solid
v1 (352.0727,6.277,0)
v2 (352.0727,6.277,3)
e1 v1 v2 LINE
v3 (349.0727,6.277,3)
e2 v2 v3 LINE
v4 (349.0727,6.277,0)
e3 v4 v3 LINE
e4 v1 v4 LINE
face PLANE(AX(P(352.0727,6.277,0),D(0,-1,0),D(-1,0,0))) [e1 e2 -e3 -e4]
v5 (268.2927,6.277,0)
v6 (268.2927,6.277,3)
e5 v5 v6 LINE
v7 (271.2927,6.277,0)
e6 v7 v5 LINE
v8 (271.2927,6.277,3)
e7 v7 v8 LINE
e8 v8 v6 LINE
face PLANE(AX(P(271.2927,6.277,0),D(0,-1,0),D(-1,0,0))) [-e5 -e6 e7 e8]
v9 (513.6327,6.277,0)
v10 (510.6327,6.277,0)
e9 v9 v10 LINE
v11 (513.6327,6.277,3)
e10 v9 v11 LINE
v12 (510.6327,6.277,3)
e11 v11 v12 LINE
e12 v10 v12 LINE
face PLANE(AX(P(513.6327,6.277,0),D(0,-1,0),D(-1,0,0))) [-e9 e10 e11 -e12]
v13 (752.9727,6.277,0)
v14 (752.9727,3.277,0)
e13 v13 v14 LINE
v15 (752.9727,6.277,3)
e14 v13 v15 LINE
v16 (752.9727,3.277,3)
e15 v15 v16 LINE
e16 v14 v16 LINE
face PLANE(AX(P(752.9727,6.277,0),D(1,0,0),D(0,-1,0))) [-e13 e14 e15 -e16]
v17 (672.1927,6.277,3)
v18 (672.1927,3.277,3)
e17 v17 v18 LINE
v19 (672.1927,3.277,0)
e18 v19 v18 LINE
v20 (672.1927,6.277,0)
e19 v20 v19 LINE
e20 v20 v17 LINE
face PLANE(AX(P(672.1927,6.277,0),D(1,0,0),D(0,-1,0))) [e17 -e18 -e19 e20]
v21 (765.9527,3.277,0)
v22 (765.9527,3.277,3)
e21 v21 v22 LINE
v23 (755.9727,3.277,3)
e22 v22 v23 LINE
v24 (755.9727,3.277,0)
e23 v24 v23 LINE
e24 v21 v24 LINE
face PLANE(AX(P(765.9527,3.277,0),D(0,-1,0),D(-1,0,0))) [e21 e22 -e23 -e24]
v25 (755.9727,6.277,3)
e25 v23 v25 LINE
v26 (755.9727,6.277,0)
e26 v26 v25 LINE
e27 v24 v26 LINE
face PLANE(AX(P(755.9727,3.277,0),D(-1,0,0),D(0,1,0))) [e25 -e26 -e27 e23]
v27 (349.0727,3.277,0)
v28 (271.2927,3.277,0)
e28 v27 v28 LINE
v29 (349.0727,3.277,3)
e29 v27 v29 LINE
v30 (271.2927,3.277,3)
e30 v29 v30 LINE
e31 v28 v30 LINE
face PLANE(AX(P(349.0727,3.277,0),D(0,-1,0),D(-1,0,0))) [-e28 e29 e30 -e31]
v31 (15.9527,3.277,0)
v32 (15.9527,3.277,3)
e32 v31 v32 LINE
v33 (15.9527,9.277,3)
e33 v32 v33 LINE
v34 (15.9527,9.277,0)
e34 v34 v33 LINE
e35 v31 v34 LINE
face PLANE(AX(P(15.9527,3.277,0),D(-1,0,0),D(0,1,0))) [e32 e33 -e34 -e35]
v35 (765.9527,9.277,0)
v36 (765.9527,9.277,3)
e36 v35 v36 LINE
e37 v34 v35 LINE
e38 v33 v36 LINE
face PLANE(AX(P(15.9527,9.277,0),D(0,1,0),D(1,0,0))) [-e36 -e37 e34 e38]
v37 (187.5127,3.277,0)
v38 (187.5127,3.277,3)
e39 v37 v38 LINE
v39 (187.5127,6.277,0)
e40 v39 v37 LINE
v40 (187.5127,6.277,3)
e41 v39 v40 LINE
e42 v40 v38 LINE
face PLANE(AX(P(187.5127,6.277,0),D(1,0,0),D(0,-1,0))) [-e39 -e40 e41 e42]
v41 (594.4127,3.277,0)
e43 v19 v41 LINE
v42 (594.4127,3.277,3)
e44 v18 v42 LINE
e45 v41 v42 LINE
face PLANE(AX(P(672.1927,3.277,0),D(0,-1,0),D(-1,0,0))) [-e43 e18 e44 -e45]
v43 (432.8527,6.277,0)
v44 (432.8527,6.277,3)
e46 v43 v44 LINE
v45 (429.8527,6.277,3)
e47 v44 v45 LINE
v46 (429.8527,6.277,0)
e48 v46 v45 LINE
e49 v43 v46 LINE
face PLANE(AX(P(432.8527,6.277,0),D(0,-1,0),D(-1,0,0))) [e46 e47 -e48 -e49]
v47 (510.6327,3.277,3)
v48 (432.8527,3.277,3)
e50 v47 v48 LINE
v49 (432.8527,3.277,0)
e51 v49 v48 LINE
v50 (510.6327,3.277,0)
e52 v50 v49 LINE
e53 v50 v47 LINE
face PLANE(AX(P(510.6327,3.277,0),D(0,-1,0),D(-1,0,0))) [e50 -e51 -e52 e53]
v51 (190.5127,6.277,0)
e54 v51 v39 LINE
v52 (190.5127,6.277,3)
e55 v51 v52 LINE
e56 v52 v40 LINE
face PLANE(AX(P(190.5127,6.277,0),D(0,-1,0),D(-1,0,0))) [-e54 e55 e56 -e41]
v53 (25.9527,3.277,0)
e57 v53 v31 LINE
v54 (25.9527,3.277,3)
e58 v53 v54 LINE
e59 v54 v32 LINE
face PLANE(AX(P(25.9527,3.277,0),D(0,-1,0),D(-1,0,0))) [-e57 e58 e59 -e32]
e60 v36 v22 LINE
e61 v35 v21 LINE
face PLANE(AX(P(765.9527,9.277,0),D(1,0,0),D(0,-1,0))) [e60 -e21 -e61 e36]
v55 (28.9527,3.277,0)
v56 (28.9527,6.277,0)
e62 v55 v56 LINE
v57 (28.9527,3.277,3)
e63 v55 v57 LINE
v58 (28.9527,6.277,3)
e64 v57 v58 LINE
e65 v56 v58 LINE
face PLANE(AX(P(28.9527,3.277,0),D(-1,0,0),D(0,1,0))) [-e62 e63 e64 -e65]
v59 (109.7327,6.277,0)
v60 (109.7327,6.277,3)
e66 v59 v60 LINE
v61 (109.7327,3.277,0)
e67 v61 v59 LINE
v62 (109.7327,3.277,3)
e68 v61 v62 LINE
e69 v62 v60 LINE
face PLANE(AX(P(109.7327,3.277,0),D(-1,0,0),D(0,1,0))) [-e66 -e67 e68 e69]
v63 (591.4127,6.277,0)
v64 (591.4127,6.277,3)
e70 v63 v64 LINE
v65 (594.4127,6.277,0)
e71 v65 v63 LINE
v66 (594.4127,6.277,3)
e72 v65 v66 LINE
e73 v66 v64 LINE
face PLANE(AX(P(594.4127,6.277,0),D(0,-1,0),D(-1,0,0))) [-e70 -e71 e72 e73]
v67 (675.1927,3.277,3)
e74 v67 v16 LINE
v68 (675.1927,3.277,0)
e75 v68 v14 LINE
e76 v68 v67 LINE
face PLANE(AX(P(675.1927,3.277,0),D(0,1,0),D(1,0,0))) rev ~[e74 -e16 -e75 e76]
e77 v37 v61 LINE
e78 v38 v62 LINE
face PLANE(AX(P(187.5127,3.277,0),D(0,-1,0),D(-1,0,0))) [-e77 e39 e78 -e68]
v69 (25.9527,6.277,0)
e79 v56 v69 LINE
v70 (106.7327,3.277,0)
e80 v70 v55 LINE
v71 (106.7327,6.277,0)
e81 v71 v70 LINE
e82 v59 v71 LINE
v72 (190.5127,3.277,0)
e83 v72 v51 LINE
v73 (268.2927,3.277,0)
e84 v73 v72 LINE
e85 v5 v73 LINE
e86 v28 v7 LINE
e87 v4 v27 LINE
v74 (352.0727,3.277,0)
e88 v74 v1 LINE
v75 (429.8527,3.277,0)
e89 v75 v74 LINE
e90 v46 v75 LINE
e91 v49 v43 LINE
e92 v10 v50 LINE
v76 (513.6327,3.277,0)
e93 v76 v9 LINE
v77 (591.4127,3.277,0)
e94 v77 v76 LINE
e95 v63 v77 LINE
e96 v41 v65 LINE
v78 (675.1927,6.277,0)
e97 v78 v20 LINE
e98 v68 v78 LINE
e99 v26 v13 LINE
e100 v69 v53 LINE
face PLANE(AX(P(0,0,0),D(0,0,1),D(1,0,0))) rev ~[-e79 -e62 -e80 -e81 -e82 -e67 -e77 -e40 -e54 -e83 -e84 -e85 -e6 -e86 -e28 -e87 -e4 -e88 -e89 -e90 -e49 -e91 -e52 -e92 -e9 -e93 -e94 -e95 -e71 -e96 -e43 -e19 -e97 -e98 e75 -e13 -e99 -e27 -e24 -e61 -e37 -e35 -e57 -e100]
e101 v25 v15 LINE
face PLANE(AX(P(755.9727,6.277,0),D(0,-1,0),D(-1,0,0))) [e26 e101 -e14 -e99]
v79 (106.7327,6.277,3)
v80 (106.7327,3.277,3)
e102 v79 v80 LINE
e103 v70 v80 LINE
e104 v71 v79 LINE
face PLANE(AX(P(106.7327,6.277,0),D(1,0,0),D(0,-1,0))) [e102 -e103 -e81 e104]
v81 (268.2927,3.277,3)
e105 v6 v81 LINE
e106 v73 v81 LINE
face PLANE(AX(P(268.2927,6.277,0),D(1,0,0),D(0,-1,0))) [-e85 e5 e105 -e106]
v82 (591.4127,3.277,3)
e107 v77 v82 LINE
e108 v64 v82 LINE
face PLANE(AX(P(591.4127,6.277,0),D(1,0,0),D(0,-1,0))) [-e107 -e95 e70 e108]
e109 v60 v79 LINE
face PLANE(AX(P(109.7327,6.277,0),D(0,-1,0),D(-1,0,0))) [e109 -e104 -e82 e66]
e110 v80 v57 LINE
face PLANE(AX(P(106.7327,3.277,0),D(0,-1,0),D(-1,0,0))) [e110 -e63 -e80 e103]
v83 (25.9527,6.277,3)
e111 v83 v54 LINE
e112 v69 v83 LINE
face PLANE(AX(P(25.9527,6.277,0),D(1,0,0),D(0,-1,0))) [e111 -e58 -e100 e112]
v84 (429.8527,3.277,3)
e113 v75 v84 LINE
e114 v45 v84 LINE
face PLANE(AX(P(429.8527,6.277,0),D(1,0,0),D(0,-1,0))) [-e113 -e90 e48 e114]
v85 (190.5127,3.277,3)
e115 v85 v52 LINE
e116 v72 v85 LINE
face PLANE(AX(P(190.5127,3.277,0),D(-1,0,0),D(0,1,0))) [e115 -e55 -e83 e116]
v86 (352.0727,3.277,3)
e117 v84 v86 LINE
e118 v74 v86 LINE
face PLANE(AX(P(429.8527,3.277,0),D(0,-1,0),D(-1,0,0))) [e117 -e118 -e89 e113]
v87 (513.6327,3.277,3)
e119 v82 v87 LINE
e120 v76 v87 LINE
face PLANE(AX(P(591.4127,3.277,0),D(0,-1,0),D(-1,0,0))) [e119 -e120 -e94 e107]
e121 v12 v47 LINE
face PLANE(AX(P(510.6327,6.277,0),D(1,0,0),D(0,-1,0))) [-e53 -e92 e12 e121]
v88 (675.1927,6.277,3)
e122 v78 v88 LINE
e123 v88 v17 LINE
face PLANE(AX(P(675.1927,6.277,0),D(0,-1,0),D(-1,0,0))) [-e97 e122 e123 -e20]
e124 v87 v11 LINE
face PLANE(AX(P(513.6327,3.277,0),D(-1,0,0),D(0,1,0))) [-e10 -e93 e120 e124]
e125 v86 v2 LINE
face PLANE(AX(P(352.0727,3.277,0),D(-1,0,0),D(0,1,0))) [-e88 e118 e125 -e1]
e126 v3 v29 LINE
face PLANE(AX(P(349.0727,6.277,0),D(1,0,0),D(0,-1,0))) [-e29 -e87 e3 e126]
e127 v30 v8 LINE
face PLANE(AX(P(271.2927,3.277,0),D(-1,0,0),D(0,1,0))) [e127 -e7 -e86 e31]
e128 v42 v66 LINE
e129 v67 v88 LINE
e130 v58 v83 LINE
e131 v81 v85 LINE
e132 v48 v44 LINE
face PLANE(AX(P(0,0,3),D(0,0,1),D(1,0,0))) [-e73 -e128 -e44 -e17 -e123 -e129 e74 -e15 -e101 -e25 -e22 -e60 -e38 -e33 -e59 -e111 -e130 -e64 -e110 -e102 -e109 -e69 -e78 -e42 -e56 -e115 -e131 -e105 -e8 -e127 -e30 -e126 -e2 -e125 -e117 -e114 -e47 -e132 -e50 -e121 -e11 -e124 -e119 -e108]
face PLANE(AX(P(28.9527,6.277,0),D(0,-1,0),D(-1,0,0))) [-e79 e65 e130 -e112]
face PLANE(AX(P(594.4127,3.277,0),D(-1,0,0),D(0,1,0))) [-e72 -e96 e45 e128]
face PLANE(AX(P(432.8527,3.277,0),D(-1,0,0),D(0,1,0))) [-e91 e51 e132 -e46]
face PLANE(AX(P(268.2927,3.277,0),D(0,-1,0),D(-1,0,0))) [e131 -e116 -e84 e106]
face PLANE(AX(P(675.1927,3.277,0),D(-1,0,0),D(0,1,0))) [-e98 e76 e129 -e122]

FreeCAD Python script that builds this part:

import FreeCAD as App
import Part
import Sketcher
Q = App.Units.Quantity


def add_polygon(sketch, points):
    """Adds a closed chain of lines whose ends are joined by coincident constraints."""
    first, n = sketch.GeometryCount, len(points)
    for a, b in zip(points, points[1:] + points[:1]):
        sketch.addGeometry(Part.LineSegment(App.Vector(*a, 0), App.Vector(*b, 0)), False)
    for i in range(n):
        sketch.addConstraint(Sketcher.Constraint("Coincident", first + i, 2, first + (i + 1) % n, 1))

doc = App.newDocument("Part")
params = doc.addObject("Spreadsheet::Sheet", "Params")
for row, (alias, value) in enumerate([
    ("sketch1_width", "750 mm"),
    ("sketch1_height", "6 mm"),
    ("sketch1_width2", "10 mm"),
    ("sketch1_width3", "3 mm"),
    ("sketch1_width4", "77.78 mm"),
    ("pad1_length", "3 mm"),
], start=1):
    params.set(f"A{row}", alias)
    params.set(f"B{row}", "=" + value)
    params.setAlias(f"B{row}", alias)

body = doc.addObject("PartDesign::Body", "Body")

sketch1 = doc.addObject("Sketcher::SketchObject", "Sketch")
body.addObject(sketch1)
sketch1.AttachmentSupport = (doc.XY_Plane, [""])
sketch1.MapMode = "FlatFace"
add_polygon(sketch1, [(765.9527, 9.277), (15.9527, 9.277), (15.9527, 3.277), (25.9527, 3.277), (25.9527, 6.277), (28.9527, 6.277), (28.9527, 3.277), (106.7327, 3.277), (106.7327, 6.277), (109.7327, 6.277), (109.7327, 3.277), (187.5127, 3.277), (187.5127, 6.277), (190.5127, 6.277), (190.5127, 3.277), (268.2927, 3.277), (268.2927, 6.277), (271.2927, 6.277), (271.2927, 3.277), (349.0727, 3.277), (349.0727, 6.277), (352.0727, 6.277), (352.0727, 3.277), (429.8527, 3.277), (429.8527, 6.277), (432.8527, 6.277), (432.8527, 3.277), (510.6327, 3.277), (510.6327, 6.277), (513.6327, 6.277), (513.6327, 3.277), (591.4127, 3.277), (591.4127, 6.277), (594.4127, 6.277), (594.4127, 3.277), (672.1927, 3.277), (672.1927, 6.277), (675.1927, 6.277), (675.1927, 3.277), (752.9727, 3.277), (752.9727, 6.277), (755.9727, 6.277), (755.9727, 3.277), (765.9527, 3.277)])
sketch1.addConstraint([
    Sketcher.Constraint("Horizontal", 0),
    Sketcher.Constraint("Vertical", 1),
    Sketcher.Constraint("Horizontal", 2),
    Sketcher.Constraint("Vertical", 3),
    Sketcher.Constraint("Horizontal", 4),
    Sketcher.Constraint("Vertical", 5),
    Sketcher.Constraint("Horizontal", 6),
    Sketcher.Constraint("Vertical", 7),
    Sketcher.Constraint("Horizontal", 8),
    Sketcher.Constraint("Vertical", 9),
    Sketcher.Constraint("Horizontal", 10),
    Sketcher.Constraint("Vertical", 11),
    Sketcher.Constraint("Horizontal", 12),
    Sketcher.Constraint("Vertical", 13),
    Sketcher.Constraint("Horizontal", 14),
    Sketcher.Constraint("Vertical", 15),
    Sketcher.Constraint("Horizontal", 16),
    Sketcher.Constraint("Vertical", 17),
    Sketcher.Constraint("Horizontal", 18),
    Sketcher.Constraint("Vertical", 19),
    Sketcher.Constraint("Horizontal", 20),
    Sketcher.Constraint("Vertical", 21),
    Sketcher.Constraint("Horizontal", 22),
    Sketcher.Constraint("Vertical", 23),
    Sketcher.Constraint("Horizontal", 24),
    Sketcher.Constraint("Vertical", 25),
    Sketcher.Constraint("Horizontal", 26),
    Sketcher.Constraint("Vertical", 27),
    Sketcher.Constraint("Horizontal", 28),
    Sketcher.Constraint("Vertical", 29),
    Sketcher.Constraint("Horizontal", 30),
    Sketcher.Constraint("Vertical", 31),
    Sketcher.Constraint("Horizontal", 32),
    Sketcher.Constraint("Vertical", 33),
    Sketcher.Constraint("Horizontal", 34),
    Sketcher.Constraint("Vertical", 35),
    Sketcher.Constraint("Horizontal", 36),
    Sketcher.Constraint("Vertical", 37),
    Sketcher.Constraint("Horizontal", 38),
    Sketcher.Constraint("Vertical", 39),
    Sketcher.Constraint("Horizontal", 40),
    Sketcher.Constraint("Vertical", 41),
    Sketcher.Constraint("Horizontal", 42),
    Sketcher.Constraint("Vertical", 43),
    Sketcher.Constraint("Horizontal", 2, 2, 5, 2),
    Sketcher.Constraint("Horizontal", 4, 2, 7, 2),
    Sketcher.Constraint("Horizontal", 6, 2, 9, 2),
    Sketcher.Constraint("Horizontal", 8, 2, 11, 2),
    Sketcher.Constraint("Horizontal", 10, 2, 13, 2),
    Sketcher.Constraint("Horizontal", 12, 2, 15, 2),
    Sketcher.Constraint("Horizontal", 14, 2, 17, 2),
    Sketcher.Constraint("Horizontal", 16, 2, 19, 2),
    Sketcher.Constraint("Horizontal", 18, 2, 21, 2),
    Sketcher.Constraint("Horizontal", 20, 2, 23, 2),
    Sketcher.Constraint("Horizontal", 22, 2, 25, 2),
    Sketcher.Constraint("Horizontal", 24, 2, 27, 2),
    Sketcher.Constraint("Horizontal", 26, 2, 29, 2),
    Sketcher.Constraint("Horizontal", 28, 2, 31, 2),
    Sketcher.Constraint("Horizontal", 30, 2, 33, 2),
    Sketcher.Constraint("Horizontal", 32, 2, 35, 2),
    Sketcher.Constraint("Horizontal", 34, 2, 37, 2),
    Sketcher.Constraint("Horizontal", 36, 2, 39, 2),
    Sketcher.Constraint("Horizontal", 38, 2, 41, 2),
    Sketcher.Constraint("Equal", 4, 8),
    Sketcher.Constraint("Equal", 6, 10),
    Sketcher.Constraint("Equal", 8, 12),
    Sketcher.Constraint("Equal", 10, 14),
    Sketcher.Constraint("Equal", 12, 16),
    Sketcher.Constraint("Equal", 14, 18),
    Sketcher.Constraint("Equal", 16, 20),
    Sketcher.Constraint("Equal", 18, 22),
    Sketcher.Constraint("Equal", 20, 24),
    Sketcher.Constraint("Equal", 22, 26),
    Sketcher.Constraint("Equal", 24, 28),
    Sketcher.Constraint("Equal", 26, 30),
    Sketcher.Constraint("Equal", 28, 32),
    Sketcher.Constraint("Equal", 30, 34),
    Sketcher.Constraint("Equal", 32, 36),
    Sketcher.Constraint("Equal", 34, 38),
    Sketcher.Constraint("Equal", 36, 40),
    Sketcher.Constraint("Equal", 40, 3),
    Sketcher.Constraint("DistanceX", 0, 2, 0, 1, Q("750 mm")),
    Sketcher.Constraint("DistanceY", 1, 2, 1, 1, Q("6 mm")),
    Sketcher.Constraint("DistanceX", 2, 1, 2, 2, Q("10 mm")),
    Sketcher.Constraint("DistanceX", 4, 1, 4, 2, Q("3 mm")),
    Sketcher.Constraint("DistanceX", 6, 1, 6, 2, Q("77.78 mm")),
    Sketcher.Constraint("DistanceY", -1, 1, 0, 2, Q("9.277 mm")),
    Sketcher.Constraint("DistanceX", -1, 1, 0, 2, Q("15.9527 mm")),
])
sketch1.setExpression("Constraints[125]", "Params.sketch1_width")
sketch1.setExpression("Constraints[126]", "Params.sketch1_height")
sketch1.setExpression("Constraints[127]", "Params.sketch1_width2")
sketch1.setExpression("Constraints[128]", "Params.sketch1_width3")
sketch1.setExpression("Constraints[129]", "Params.sketch1_width4")
pad1 = doc.addObject("PartDesign::Pad", "Pad")
body.addObject(pad1)
pad1.Profile = sketch1
pad1.setExpression("Length", "Params.pad1_length")

doc.recompute()
